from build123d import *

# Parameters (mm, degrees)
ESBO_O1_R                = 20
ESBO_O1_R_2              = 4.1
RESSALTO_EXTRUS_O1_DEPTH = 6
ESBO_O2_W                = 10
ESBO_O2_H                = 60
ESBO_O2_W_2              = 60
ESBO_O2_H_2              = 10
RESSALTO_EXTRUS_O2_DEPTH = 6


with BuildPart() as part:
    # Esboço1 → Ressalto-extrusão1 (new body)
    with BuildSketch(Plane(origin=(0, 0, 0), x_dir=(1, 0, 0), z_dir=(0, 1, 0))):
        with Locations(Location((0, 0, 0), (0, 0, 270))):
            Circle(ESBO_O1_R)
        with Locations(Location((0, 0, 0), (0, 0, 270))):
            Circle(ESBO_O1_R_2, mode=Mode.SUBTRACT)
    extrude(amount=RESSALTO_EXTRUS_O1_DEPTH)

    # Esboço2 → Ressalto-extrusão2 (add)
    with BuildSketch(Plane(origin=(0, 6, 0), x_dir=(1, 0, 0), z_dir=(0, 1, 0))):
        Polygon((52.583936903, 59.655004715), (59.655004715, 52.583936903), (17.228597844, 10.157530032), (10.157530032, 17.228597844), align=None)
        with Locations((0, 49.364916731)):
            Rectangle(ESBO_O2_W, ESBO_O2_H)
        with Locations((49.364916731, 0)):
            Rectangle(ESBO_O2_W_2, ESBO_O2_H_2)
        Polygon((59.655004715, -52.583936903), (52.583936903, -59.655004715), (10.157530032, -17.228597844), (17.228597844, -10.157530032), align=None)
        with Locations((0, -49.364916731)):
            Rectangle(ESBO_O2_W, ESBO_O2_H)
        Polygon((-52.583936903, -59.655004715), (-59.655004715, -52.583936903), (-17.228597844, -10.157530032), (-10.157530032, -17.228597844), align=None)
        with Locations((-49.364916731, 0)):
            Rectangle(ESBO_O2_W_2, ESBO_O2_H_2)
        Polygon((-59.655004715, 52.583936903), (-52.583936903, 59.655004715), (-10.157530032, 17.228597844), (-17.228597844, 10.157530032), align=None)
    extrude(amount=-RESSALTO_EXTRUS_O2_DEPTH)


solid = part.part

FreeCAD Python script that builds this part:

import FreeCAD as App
import Part
import Sketcher

doc = App.newDocument("Part")
params = doc.addObject("Spreadsheet::Sheet", "Params")
for row, (alias, value) in enumerate([
    ("sketch1_diameter", "40 mm"),
    ("sketch1_diameter2", "8.2 mm"),
    ("pad1_length", "6 mm"),
    ("sketch2_width", "10 mm"),
    ("sketch2_width2", "60 mm"),
    ("sketch2_length", "10 mm"),
    ("sketch2_length2", "60 mm"),
    ("pad2_length", "6 mm"),
], start=1):
    params.set(f"A{row}", alias)
    params.set(f"B{row}", "=" + value)
    params.setAlias(f"B{row}", alias)

body = doc.addObject("PartDesign::Body", "Body")

# Sketch on XZ plane
sketch1 = doc.addObject("Sketcher::SketchObject", "Sketch")
body.addObject(sketch1)
sketch1.AttachmentSupport = (doc.XZ_Plane, [""])
sketch1.MapMode = "FlatFace"
sketch1.addGeometry(Part.Circle(App.Vector(0, 0, 0), App.Vector(0, 0, 1), 20), False)
sketch1.addGeometry(Part.Circle(App.Vector(0, 0, 0), App.Vector(0, 0, 1), 4.1), False)
sketch1.addConstraint(Sketcher.Constraint("Coincident", 0, 3, -1, 1))
sketch1.addConstraint(Sketcher.Constraint("Coincident", 1, 3, -1, 1))
sketch1.addConstraint(Sketcher.Constraint("Diameter", 0, 40.0))
sketch1.addConstraint(Sketcher.Constraint("Diameter", 1, 8.2))
sketch1.setExpression("Constraints[2]", "Params.sketch1_diameter")
sketch1.setExpression("Constraints[3]", "Params.sketch1_diameter2")
pad1 = doc.addObject("PartDesign::Pad", "Pad")
body.addObject(pad1)
pad1.Profile = sketch1
pad1.setExpression("Length", "Params.pad1_length")
pad1.Reversed = True

# Sketch on XZ plane
sketch2 = doc.addObject("Sketcher::SketchObject", "Sketch001")
body.addObject(sketch2)
sketch2.AttachmentSupport = (doc.XZ_Plane, [""])
sketch2.MapMode = "FlatFace"
sketch2.AttachmentOffset = App.Placement(App.Vector(0, 0, -6), App.Rotation())
sketch2.addGeometry(Part.LineSegment(App.Vector(60, -53, 0), App.Vector(53, -60, 0)), False)
sketch2.addGeometry(Part.LineSegment(App.Vector(53, -60, 0), App.Vector(10, -17, 0)), False)
sketch2.addGeometry(Part.LineSegment(App.Vector(10, -17, 0), App.Vector(17, -10, 0)), False)
sketch2.addGeometry(Part.LineSegment(App.Vector(17, -10, 0), App.Vector(60, -53, 0)), False)
sketch2.addGeometry(Part.LineSegment(App.Vector(-5, -79, 0), App.Vector(-5, -19, 0)), False)
sketch2.addGeometry(Part.LineSegment(App.Vector(-5, -19, 0), App.Vector(5, -19, 0)), False)
sketch2.addGeometry(Part.LineSegment(App.Vector(5, -19, 0), App.Vector(5, -79, 0)), False)
sketch2.addGeometry(Part.LineSegment(App.Vector(5, -79, 0), App.Vector(-5, -79, 0)), False)
sketch2.addGeometry(Part.LineSegment(App.Vector(19, -5, 0), App.Vector(19, 5, 0)), False)
sketch2.addGeometry(Part.LineSegment(App.Vector(19, 5, 0), App.Vector(79, 5, 0)), False)
sketch2.addGeometry(Part.LineSegment(App.Vector(79, 5, 0), App.Vector(79, -5, 0)), False)
sketch2.addGeometry(Part.LineSegment(App.Vector(79, -5, 0), App.Vector(19, -5, 0)), False)
sketch2.addGeometry(Part.LineSegment(App.Vector(53, 60, 0), App.Vector(60, 53, 0)), False)
sketch2.addGeometry(Part.LineSegment(App.Vector(60, 53, 0), App.Vector(17, 10, 0)), False)
sketch2.addGeometry(Part.LineSegment(App.Vector(17, 10, 0), App.Vector(10, 17, 0)), False)
sketch2.addGeometry(Part.LineSegment(App.Vector(10, 17, 0), App.Vector(53, 60, 0)), False)
sketch2.addGeometry(Part.LineSegment(App.Vector(-5, 19, 0), App.Vector(-5, 79, 0)), False)
sketch2.addGeometry(Part.LineSegment(App.Vector(-5, 79, 0), App.Vector(5, 79, 0)), False)
sketch2.addGeometry(Part.LineSegment(App.Vector(5, 79, 0), App.Vector(5, 19, 0)), False)
sketch2.addGeometry(Part.LineSegment(App.Vector(5, 19, 0), App.Vector(-5, 19, 0)), False)
sketch2.addGeometry(Part.LineSegment(App.Vector(-60, 53, 0), App.Vector(-53, 60, 0)), False)
sketch2.addGeometry(Part.LineSegment(App.Vector(-53, 60, 0), App.Vector(-10, 17, 0)), False)
sketch2.addGeometry(Part.LineSegment(App.Vector(-10, 17, 0), App.Vector(-17, 10, 0)), False)
sketch2.addGeometry(Part.LineSegment(App.Vector(-17, 10, 0), App.Vector(-60, 53, 0)), False)
sketch2.addGeometry(Part.LineSegment(App.Vector(-79, -5, 0), App.Vector(-79, 5, 0)), False)
sketch2.addGeometry(Part.LineSegment(App.Vector(-79, 5, 0), App.Vector(-19, 5, 0)), False)
sketch2.addGeometry(Part.LineSegment(App.Vector(-19, 5, 0), App.Vector(-19, -5, 0)), False)
sketch2.addGeometry(Part.LineSegment(App.Vector(-19, -5, 0), App.Vector(-79, -5, 0)), False)
sketch2.addGeometry(Part.LineSegment(App.Vector(-53, -60, 0), App.Vector(-60, -53, 0)), False)
sketch2.addGeometry(Part.LineSegment(App.Vector(-60, -53, 0), App.Vector(-17, -10, 0)), False)
sketch2.addGeometry(Part.LineSegment(App.Vector(-17, -10, 0), App.Vector(-10, -17, 0)), False)
sketch2.addGeometry(Part.LineSegment(App.Vector(-10, -17, 0), App.Vector(-53, -60, 0)), False)
sketch2.addConstraint(Sketcher.Constraint("Coincident", 0, 2, 1, 1))
sketch2.addConstraint(Sketcher.Constraint("Coincident", 1, 2, 2, 1))
sketch2.addConstraint(Sketcher.Constraint("Coincident", 2, 2, 3, 1))
sketch2.addConstraint(Sketcher.Constraint("Coincident", 3, 2, 0, 1))
sketch2.addConstraint(Sketcher.Constraint("Coincident", 4, 2, 5, 1))
sketch2.addConstraint(Sketcher.Constraint("Coincident", 5, 2, 6, 1))
sketch2.addConstraint(Sketcher.Constraint("Coincident", 6, 2, 7, 1))
sketch2.addConstraint(Sketcher.Constraint("Coincident", 7, 2, 4, 1))
sketch2.addConstraint(Sketcher.Constraint("Coincident", 8, 2, 9, 1))
sketch2.addConstraint(Sketcher.Constraint("Coincident", 9, 2, 10, 1))
sketch2.addConstraint(Sketcher.Constraint("Coincident", 10, 2, 11, 1))
sketch2.addConstraint(Sketcher.Constraint("Coincident", 11, 2, 8, 1))
sketch2.addConstraint(Sketcher.Constraint("Coincident", 12, 2, 13, 1))
sketch2.addConstraint(Sketcher.Constraint("Coincident", 13, 2, 14, 1))
sketch2.addConstraint(Sketcher.Constraint("Coincident", 14, 2, 15, 1))
sketch2.addConstraint(Sketcher.Constraint("Coincident", 15, 2, 12, 1))
sketch2.addConstraint(Sketcher.Constraint("Coincident", 16, 2, 17, 1))
sketch2.addConstraint(Sketcher.Constraint("Coincident", 17, 2, 18, 1))
sketch2.addConstraint(Sketcher.Constraint("Coincident", 18, 2, 19, 1))
sketch2.addConstraint(Sketcher.Constraint("Coincident", 19, 2, 16, 1))
sketch2.addConstraint(Sketcher.Constraint("Coincident", 20, 2, 21, 1))
sketch2.addConstraint(Sketcher.Constraint("Coincident", 21, 2, 22, 1))
sketch2.addConstraint(Sketcher.Constraint("Coincident", 22, 2, 23, 1))
sketch2.addConstraint(Sketcher.Constraint("Coincident", 23, 2, 20, 1))
sketch2.addConstraint(Sketcher.Constraint("Coincident", 24, 2, 25, 1))
sketch2.addConstraint(Sketcher.Constraint("Coincident", 25, 2, 26, 1))
sketch2.addConstraint(Sketcher.Constraint("Coincident", 26, 2, 27, 1))
sketch2.addConstraint(Sketcher.Constraint("Coincident", 27, 2, 24, 1))
sketch2.addConstraint(Sketcher.Constraint("Coincident", 28, 2, 29, 1))
sketch2.addConstraint(Sketcher.Constraint("Coincident", 29, 2, 30, 1))
sketch2.addConstraint(Sketcher.Constraint("Coincident", 30, 2, 31, 1))
sketch2.addConstraint(Sketcher.Constraint("Coincident", 31, 2, 28, 1))
sketch2.addConstraint(Sketcher.Constraint("Vertical", 4))
sketch2.addConstraint(Sketcher.Constraint("Horizontal", 5))
sketch2.addConstraint(Sketcher.Constraint("Vertical", 6))
sketch2.addConstraint(Sketcher.Constraint("Horizontal", 7))
sketch2.addConstraint(Sketcher.Constraint("Vertical", 8))
sketch2.addConstraint(Sketcher.Constraint("Horizontal", 9))
sketch2.addConstraint(Sketcher.Constraint("Vertical", 10))
sketch2.addConstraint(Sketcher.Constraint("Horizontal", 11))
sketch2.addConstraint(Sketcher.Constraint("Vertical", 16))
sketch2.addConstraint(Sketcher.Constraint("Horizontal", 17))
sketch2.addConstraint(Sketcher.Constraint("Vertical", 18))
sketch2.addConstraint(Sketcher.Constraint("Horizontal", 19))
sketch2.addConstraint(Sketcher.Constraint("Vertical", 24))
sketch2.addConstraint(Sketcher.Constraint("Horizontal", 25))
sketch2.addConstraint(Sketcher.Constraint("Vertical", 26))
sketch2.addConstraint(Sketcher.Constraint("Horizontal", 27))
sketch2.addConstraint(Sketcher.Constraint("Symmetric", 6, 2, 16, 2, -1, 1))
sketch2.addConstraint(Sketcher.Constraint("Symmetric", 4, 2, 18, 2, -1, 1))
sketch2.addConstraint(Sketcher.Constraint("Symmetric", 0, 2, 20, 2, -1, 1))
sketch2.addConstraint(Sketcher.Constraint("Symmetric", 1, 2, 21, 2, -1, 1))
sketch2.addConstraint(Sketcher.Constraint("Symmetric", 2, 2, 22, 2, -1, 1))
sketch2.addConstraint(Sketcher.Constraint("Symmetric", 3, 2, 23, 2, -1, 1))
sketch2.addConstraint(Sketcher.Constraint("Symmetric", 10, 2, 24, 2, -1, 1))
sketch2.addConstraint(Sketcher.Constraint("Symmetric", 8, 2, 26, 2, -1, 1))
sketch2.addConstraint(Sketcher.Constraint("Symmetric", 12, 2, 28, 2, -1, 1))
sketch2.addConstraint(Sketcher.Constraint("Symmetric", 13, 2, 29, 2, -1, 1))
sketch2.addConstraint(Sketcher.Constraint("Symmetric", 14, 2, 30, 2, -1, 1))
sketch2.addConstraint(Sketcher.Constraint("Symmetric", 15, 2, 31, 2, -1, 1))
sketch2.addConstraint(Sketcher.Constraint("Symmetric", 15, 2, 20, 2, -2))
sketch2.addConstraint(Sketcher.Constraint("Symmetric", 14, 2, 21, 2, -2))
sketch2.addConstraint(Sketcher.Constraint("Symmetric", 13, 2, 22, 2, -2))
sketch2.addConstraint(Sketcher.Constraint("Symmetric", 12, 2, 23, 2, -2))
sketch2.addConstraint(Sketcher.Constraint("Perpendicular", 0, 1))
sketch2.addConstraint(Sketcher.Constraint("Perpendicular", 1, 2))
sketch2.addConstraint(Sketcher.Constraint("Perpendicular", 2, 3))
sketch2.addConstraint(Sketcher.Constraint("Parallel", 3, 12))
sketch2.addConstraint(Sketcher.Constraint("Horizontal", 9, 2, 24, 2))
sketch2.addConstraint(Sketcher.Constraint("Vertical", 7, 2, 16, 2))
sketch2.addConstraint(Sketcher.Constraint("Equal", 27, 4))
sketch2.addConstraint(Sketcher.Constraint("Equal", 19, 8))
sketch2.addConstraint(Sketcher.Constraint("DistanceX", 5, 1, 5, 2, 10.0))
sketch2.addConstraint(Sketcher.Constraint("DistanceX", 9, 1, 9, 2, 60.0))
sketch2.addConstraint(Sketcher.Constraint("Distance", 0, 10.0))
sketch2.addConstraint(Sketcher.Constraint("Distance", 1, 60.0))
sketch2.addConstraint(Sketcher.Constraint("DistanceX", -1, 1, 1, 2, 10.15753))
sketch2.addConstraint(Sketcher.Constraint("DistanceY", 2, 2, -1, 1, 10.15753))
sketch2.addConstraint(Sketcher.Constraint("DistanceY", 4, 2, 1, 2, 2.136319))
sketch2.addConstraint(Sketcher.Constraint("DistanceX", 2, 2, 8, 2, 2.136319))
sketch2.setExpression("Constraints[72]", "Params.sketch2_width")
sketch2.setExpression("Constraints[73]", "Params.sketch2_width2")
sketch2.setExpression("Constraints[74]", "Params.sketch2_length")
sketch2.setExpression("Constraints[75]", "Params.sketch2_length2")
pad2 = doc.addObject("PartDesign::Pad", "Pad001")
body.addObject(pad2)
pad2.Profile = sketch2
pad2.setExpression("Length", "Params.pad2_length")

doc.recompute()
